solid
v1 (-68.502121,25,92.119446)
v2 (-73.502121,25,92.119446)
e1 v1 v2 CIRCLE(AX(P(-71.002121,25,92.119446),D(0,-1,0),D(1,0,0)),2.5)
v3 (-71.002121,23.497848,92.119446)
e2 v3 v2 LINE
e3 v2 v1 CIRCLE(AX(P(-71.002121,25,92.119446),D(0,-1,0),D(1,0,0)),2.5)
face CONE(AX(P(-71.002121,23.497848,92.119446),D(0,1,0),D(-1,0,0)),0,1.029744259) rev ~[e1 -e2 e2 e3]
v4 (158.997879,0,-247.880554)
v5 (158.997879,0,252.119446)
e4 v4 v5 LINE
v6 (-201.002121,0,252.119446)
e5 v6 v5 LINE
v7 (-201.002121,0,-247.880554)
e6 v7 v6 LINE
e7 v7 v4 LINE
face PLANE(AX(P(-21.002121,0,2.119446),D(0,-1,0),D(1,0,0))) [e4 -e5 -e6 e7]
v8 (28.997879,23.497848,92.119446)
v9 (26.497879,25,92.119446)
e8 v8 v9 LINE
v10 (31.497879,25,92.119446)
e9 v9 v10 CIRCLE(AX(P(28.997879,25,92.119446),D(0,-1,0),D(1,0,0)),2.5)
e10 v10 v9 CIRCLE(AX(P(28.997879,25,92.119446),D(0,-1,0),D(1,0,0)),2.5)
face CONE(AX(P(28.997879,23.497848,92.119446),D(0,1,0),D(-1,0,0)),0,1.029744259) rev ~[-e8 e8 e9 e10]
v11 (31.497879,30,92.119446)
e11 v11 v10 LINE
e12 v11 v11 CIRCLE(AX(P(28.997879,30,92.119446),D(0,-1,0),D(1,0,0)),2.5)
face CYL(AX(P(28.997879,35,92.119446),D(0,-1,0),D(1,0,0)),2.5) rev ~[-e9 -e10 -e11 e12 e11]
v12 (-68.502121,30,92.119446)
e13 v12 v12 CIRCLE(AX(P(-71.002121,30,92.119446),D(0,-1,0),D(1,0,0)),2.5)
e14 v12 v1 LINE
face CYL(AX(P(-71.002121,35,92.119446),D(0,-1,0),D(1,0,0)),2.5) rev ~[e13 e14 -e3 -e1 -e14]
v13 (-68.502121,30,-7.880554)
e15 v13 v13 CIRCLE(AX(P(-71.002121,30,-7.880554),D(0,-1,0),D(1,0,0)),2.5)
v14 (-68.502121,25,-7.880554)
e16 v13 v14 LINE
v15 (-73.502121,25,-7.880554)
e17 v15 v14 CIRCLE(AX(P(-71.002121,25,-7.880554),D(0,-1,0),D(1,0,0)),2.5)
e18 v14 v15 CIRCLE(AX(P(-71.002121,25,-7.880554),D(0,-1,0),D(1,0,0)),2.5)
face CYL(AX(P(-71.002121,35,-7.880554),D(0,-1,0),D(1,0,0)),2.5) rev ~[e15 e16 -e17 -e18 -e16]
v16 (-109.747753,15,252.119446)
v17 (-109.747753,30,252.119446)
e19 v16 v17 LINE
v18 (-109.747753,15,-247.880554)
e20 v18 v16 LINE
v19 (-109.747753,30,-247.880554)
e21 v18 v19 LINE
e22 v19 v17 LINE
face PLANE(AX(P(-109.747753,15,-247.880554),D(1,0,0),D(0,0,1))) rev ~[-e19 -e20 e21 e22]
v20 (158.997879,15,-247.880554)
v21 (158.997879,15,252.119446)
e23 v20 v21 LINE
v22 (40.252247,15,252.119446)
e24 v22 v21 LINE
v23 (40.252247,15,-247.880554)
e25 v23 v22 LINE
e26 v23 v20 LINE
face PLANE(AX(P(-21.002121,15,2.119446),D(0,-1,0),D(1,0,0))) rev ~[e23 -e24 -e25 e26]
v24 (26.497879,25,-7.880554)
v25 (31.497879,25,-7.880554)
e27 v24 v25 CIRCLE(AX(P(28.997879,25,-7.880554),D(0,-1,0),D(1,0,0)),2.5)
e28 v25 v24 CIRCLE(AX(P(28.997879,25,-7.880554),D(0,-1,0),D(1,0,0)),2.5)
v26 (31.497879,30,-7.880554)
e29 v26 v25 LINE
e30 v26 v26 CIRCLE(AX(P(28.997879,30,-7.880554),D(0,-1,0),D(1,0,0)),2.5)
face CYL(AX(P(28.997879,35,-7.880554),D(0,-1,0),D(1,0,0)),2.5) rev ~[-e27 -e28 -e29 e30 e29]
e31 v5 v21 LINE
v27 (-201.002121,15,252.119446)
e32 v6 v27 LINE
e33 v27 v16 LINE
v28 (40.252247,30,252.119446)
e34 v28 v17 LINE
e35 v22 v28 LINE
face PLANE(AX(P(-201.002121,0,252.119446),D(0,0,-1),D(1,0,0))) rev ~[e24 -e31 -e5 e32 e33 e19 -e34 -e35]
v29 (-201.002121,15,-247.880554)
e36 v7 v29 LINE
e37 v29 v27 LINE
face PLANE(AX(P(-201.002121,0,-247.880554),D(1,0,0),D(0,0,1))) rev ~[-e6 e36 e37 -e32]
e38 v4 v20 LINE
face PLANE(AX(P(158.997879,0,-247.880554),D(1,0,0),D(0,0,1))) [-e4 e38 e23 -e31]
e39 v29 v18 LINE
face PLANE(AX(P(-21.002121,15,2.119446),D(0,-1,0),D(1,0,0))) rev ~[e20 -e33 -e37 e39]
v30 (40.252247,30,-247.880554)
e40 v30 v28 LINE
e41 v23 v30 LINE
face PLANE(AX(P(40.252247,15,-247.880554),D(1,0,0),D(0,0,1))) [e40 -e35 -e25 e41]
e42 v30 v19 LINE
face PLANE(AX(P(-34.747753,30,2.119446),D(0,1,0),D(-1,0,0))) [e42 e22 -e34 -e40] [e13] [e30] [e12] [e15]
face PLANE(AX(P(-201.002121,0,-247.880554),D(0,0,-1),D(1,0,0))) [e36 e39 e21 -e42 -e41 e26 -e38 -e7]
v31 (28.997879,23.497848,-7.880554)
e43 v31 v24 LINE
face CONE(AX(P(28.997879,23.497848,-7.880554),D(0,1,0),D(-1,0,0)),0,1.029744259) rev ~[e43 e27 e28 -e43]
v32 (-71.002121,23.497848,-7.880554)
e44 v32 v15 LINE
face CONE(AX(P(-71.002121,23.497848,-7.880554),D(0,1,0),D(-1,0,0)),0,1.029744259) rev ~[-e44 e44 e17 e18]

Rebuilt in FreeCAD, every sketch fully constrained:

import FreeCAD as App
import Part
import Sketcher

V = App.Vector
Q = App.Units.Quantity

doc = App.newDocument("Part")
params = doc.addObject("Spreadsheet::Sheet", "Params")
for row, (alias, value) in enumerate([
    ("sketch1_width", "360 mm"),
    ("sketch1_height", "500 mm"),
    ("pad1_length", "15 mm"),
    ("sketch2_width", "150 mm"),
    ("sketch2_height", "500 mm"),
    ("pad2_length", "15 mm"),
    ("sketch3_diameter", "5 mm"),
    ("hole_diameter", "5 mm"),
    ("hole_depth", "5 mm"),
], start=1):
    params.set(f"A{row}", alias)
    params.set(f"B{row}", "=" + value)
    params.setAlias(f"B{row}", alias)

body = doc.addObject("PartDesign::Body", "Body")

sketch1 = body.newObject("Sketcher::SketchObject", "Sketch")
sketch1.AttachmentSupport = (doc.getObject("XZ_Plane"), [""])
sketch1.MapMode = "FlatFace"
sketch1.addGeometry([
    Part.LineSegment(V(-201, 252, 0), V(-201, -248, 0)),
    Part.LineSegment(V(-201, -248, 0), V(159, -248, 0)),
    Part.LineSegment(V(159, -248, 0), V(159, 252, 0)),
    Part.LineSegment(V(159, 252, 0), V(-201, 252, 0)),
], False)
sketch1.addConstraint([
    Sketcher.Constraint("Coincident", 0, 2, 1, 1),
    Sketcher.Constraint("Coincident", 1, 2, 2, 1),
    Sketcher.Constraint("Coincident", 2, 2, 3, 1),
    Sketcher.Constraint("Coincident", 3, 2, 0, 1),
    Sketcher.Constraint("Vertical", 0),
    Sketcher.Constraint("Horizontal", 1),
    Sketcher.Constraint("Vertical", 2),
    Sketcher.Constraint("Horizontal", 3),
    Sketcher.Constraint("DistanceX", 1, 1, 1, 2, Q("360 mm")),
    Sketcher.Constraint("DistanceY", 0, 2, 0, 1, Q("500 mm")),
    Sketcher.Constraint("DistanceX", 0, 2, -1, 1, Q("201.002121 mm")),
    Sketcher.Constraint("DistanceY", 0, 2, -1, 1, Q("247.880554 mm")),
])
sketch1.setExpression("Constraints[8]", "Params.sketch1_width")
sketch1.setExpression("Constraints[9]", "Params.sketch1_height")
pad1 = body.newObject("PartDesign::Pad", "Pad")
pad1.Profile = sketch1
pad1.setExpression("Length", "Params.pad1_length")
pad1.Reversed = True

sketch2 = body.newObject("Sketcher::SketchObject", "Sketch001")
sketch2.AttachmentSupport = (doc.getObject("XZ_Plane"), [""])
sketch2.MapMode = "FlatFace"
sketch2.AttachmentOffset = App.Placement(V(0, 0, -15), App.Rotation())
sketch2.addGeometry([
    Part.LineSegment(V(40, 252, 0), V(40, -248, 0)),
    Part.LineSegment(V(40, -248, 0), V(-110, -248, 0)),
    Part.LineSegment(V(-110, -248, 0), V(-110, 252, 0)),
    Part.LineSegment(V(-110, 252, 0), V(40, 252, 0)),
], False)
sketch2.addConstraint([
    Sketcher.Constraint("Coincident", 0, 2, 1, 1),
    Sketcher.Constraint("Coincident", 1, 2, 2, 1),
    Sketcher.Constraint("Coincident", 2, 2, 3, 1),
    Sketcher.Constraint("Coincident", 3, 2, 0, 1),
    Sketcher.Constraint("Vertical", 0),
    Sketcher.Constraint("Horizontal", 1),
    Sketcher.Constraint("Vertical", 2),
    Sketcher.Constraint("Horizontal", 3),
    Sketcher.Constraint("DistanceX", 1, 2, 1, 1, Q("150 mm")),
    Sketcher.Constraint("DistanceY", 0, 2, 0, 1, Q("500 mm")),
    Sketcher.Constraint("DistanceX", -1, 1, 0, 2, Q("40.252247 mm")),
    Sketcher.Constraint("DistanceY", 0, 2, -1, 1, Q("247.880554 mm")),
])
sketch2.setExpression("Constraints[8]", "Params.sketch2_width")
sketch2.setExpression("Constraints[9]", "Params.sketch2_height")
pad2 = body.newObject("PartDesign::Pad", "Pad001")
pad2.Profile = sketch2
pad2.setExpression("Length", "Params.pad2_length")
pad2.Reversed = True

sketch3 = body.newObject("Sketcher::SketchObject", "Sketch002")
sketch3.AttachmentSupport = (doc.getObject("XZ_Plane"), [""])
sketch3.MapMode = "FlatFace"
sketch3.AttachmentOffset = App.Placement(V(0, 0, -30), App.Rotation())
sketch3.addGeometry([
    Part.Circle(V(29, 92.1, 0), V(0, 0, 1), 2.5),
    Part.Circle(V(-71, 92.1, 0), V(0, 0, 1), 2.5),
    Part.Circle(V(-71, -7.9, 0), V(0, 0, 1), 2.5),
    Part.Circle(V(29, -7.9, 0), V(0, 0, 1), 2.5),
], False)
sketch3.addConstraint([
    Sketcher.Constraint("Equal", 0, 1),
    Sketcher.Constraint("Equal", 1, 2),
    Sketcher.Constraint("Equal", 2, 3),
    Sketcher.Constraint("Horizontal", 0, 3, 1, 3),
    Sketcher.Constraint("Horizontal", 2, 3, 3, 3),
    Sketcher.Constraint("Vertical", 1, 3, 2, 3),
    Sketcher.Constraint("Vertical", 0, 3, 3, 3),
    Sketcher.Constraint("Diameter", 0, Q("5 mm")),
    Sketcher.Constraint("DistanceX", 1, 3, 0, 3, Q("100 mm")),
    Sketcher.Constraint("DistanceY", 2, 3, 1, 3, Q("100 mm")),
    Sketcher.Constraint("DistanceX", -1, 1, 0, 3, Q("28.997879 mm")),
    Sketcher.Constraint("DistanceY", -1, 1, 0, 3, Q("92.119446 mm")),
])
sketch3.setExpression("Constraints[7]", "Params.sketch3_diameter")
doc.recompute()
hole = body.newObject("PartDesign::Hole", "Hole")
hole.Profile = sketch3
hole.ThreadType = "None"
hole.setExpression("Diameter", "Params.hole_diameter")
hole.DepthType = "Dimension"
hole.setExpression("Depth", "Params.hole_depth")
hole.DrillPoint = "Angled"
hole.DrillPointAngle = 118
hole.Reversed = True

doc.recompute()
